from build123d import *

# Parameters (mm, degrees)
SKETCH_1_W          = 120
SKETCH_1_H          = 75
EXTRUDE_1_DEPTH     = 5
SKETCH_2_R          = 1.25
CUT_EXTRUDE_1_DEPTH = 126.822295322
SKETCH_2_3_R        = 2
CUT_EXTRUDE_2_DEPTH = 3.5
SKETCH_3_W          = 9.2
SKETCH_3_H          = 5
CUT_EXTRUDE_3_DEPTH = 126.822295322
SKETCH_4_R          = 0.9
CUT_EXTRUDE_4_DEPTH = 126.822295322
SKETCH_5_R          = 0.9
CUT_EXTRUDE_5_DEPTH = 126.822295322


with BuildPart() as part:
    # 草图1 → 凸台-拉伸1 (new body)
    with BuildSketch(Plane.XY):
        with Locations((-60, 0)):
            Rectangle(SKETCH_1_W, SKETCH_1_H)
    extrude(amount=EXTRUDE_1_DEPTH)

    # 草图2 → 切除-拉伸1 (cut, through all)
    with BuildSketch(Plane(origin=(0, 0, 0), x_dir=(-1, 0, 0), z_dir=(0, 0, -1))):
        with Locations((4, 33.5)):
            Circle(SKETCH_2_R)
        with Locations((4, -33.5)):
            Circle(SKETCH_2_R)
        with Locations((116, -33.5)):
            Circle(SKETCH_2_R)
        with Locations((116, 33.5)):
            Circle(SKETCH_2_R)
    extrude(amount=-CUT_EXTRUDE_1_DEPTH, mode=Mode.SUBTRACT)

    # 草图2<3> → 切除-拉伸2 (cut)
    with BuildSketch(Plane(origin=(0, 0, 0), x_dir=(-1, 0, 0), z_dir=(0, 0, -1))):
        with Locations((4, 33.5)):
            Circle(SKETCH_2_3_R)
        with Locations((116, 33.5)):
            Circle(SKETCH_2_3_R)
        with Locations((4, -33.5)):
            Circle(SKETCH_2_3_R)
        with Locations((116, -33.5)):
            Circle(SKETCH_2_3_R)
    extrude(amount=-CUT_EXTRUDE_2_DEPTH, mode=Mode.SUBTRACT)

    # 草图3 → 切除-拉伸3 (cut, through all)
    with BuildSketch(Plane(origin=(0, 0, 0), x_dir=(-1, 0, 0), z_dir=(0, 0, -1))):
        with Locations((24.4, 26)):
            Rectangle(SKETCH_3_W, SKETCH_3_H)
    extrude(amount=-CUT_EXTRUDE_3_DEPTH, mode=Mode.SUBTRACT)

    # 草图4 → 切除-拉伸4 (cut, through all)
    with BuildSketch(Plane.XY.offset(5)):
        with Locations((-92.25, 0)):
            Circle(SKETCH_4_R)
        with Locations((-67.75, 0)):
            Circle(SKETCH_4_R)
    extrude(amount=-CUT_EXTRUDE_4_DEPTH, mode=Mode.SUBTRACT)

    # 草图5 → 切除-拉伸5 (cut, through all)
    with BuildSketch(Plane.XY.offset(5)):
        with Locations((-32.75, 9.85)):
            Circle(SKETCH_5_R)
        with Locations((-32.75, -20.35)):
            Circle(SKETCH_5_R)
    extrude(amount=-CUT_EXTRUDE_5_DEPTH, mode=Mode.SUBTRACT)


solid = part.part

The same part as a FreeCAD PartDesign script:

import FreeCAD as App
import Part
import Sketcher
from FreeCAD import Vector

doc = App.newDocument("Part")
params = doc.addObject("Spreadsheet::Sheet", "Params")
for row, (alias, value) in enumerate([
    ("sketch1_width", "120 mm"),
    ("sketch1_height", "75 mm"),
    ("pad1_length", "5 mm"),
    ("sketch2_diameter", "2.5 mm"),
    ("sketch3_diameter", "4 mm"),
    ("pocket2_length", "3.5 mm"),
    ("sketch4_height", "5 mm"),
    ("sketch4_width", "9.2 mm"),
    ("sketch5_diameter", "1.8 mm"),
    ("sketch6_diameter", "1.8 mm"),
], start=1):
    params.set(f"A{row}", alias)
    params.set(f"B{row}", "=" + value)
    params.setAlias(f"B{row}", alias)

body = doc.addObject("PartDesign::Body", "Body")

sketch1 = body.newObject("Sketcher::SketchObject", "Sketch")
sketch1.AttachmentSupport = (doc.getObject("XY_Plane"), [""])
sketch1.MapMode = "FlatFace"
sketch1.addGeometry([
    Part.LineSegment(Vector(-120, 38, 0), Vector(-120, -38, 0)),
    Part.LineSegment(Vector(-120, -38, 0), Vector(0, -38, 0)),
    Part.LineSegment(Vector(0, -38, 0), Vector(0, 38, 0)),
    Part.LineSegment(Vector(0, 38, 0), Vector(-120, 38, 0)),
], False)
sketch1.addConstraint([
    Sketcher.Constraint("Coincident", 0, 2, 1, 1),
    Sketcher.Constraint("Coincident", 1, 2, 2, 1),
    Sketcher.Constraint("Coincident", 2, 2, 3, 1),
    Sketcher.Constraint("Coincident", 3, 2, 0, 1),
    Sketcher.Constraint("Vertical", 0),
    Sketcher.Constraint("Horizontal", 1),
    Sketcher.Constraint("Vertical", 2),
    Sketcher.Constraint("Horizontal", 3),
    Sketcher.Constraint("Symmetric", 1, 2, 2, 2, -1, 1),
    Sketcher.Constraint("DistanceX", 1, 1, 1, 2, 120.0),
    Sketcher.Constraint("DistanceY", 0, 2, 0, 1, 75.0),
])
sketch1.setExpression("Constraints[9]", "Params.sketch1_width")
sketch1.setExpression("Constraints[10]", "Params.sketch1_height")
pad1 = body.newObject("PartDesign::Pad", "Pad")
pad1.Profile = sketch1
pad1.setExpression("Length", "Params.pad1_length")

sketch2 = body.newObject("Sketcher::SketchObject", "Sketch001")
sketch2.AttachmentSupport = (doc.getObject("XY_Plane"), [""])
sketch2.MapMode = "FlatFace"
sketch2.addGeometry([
    Part.Circle(Vector(-4, 33.5, 0), Vector(0, 0, 1), 1.2),
    Part.Circle(Vector(-4, -33.5, 0), Vector(0, 0, 1), 1.2),
    Part.Circle(Vector(-116, -33.5, 0), Vector(0, 0, 1), 1.2),
    Part.Circle(Vector(-116, 33.5, 0), Vector(0, 0, 1), 1.2),
], False)
sketch2.addConstraint([
    Sketcher.Constraint("Equal", 0, 1),
    Sketcher.Constraint("Equal", 1, 2),
    Sketcher.Constraint("Equal", 2, 3),
    Sketcher.Constraint("Symmetric", 0, 3, 1, 3, -1),
    Sketcher.Constraint("Symmetric", 2, 3, 3, 3, -1),
    Sketcher.Constraint("Horizontal", 1, 3, 2, 3),
    Sketcher.Constraint("Diameter", 0, 2.5),
    Sketcher.Constraint("DistanceX", 0, 3, -1, 1, 4.0),
    Sketcher.Constraint("DistanceX", 2, 3, -1, 1, 116.0),
    Sketcher.Constraint("DistanceY", 1, 3, 0, 3, 67.0),
])
sketch2.setExpression("Constraints[6]", "Params.sketch2_diameter")
pocket1 = body.newObject("PartDesign::Pocket", "Pocket")
pocket1.Profile = sketch2
pocket1.Type = "ThroughAll"
pocket1.Reversed = True

sketch3 = body.newObject("Sketcher::SketchObject", "Sketch002")
sketch3.AttachmentSupport = (doc.getObject("XY_Plane"), [""])
sketch3.MapMode = "FlatFace"
sketch3.addGeometry([
    Part.Circle(Vector(-4, 33.5, 0), Vector(0, 0, 1), 2),
    Part.Circle(Vector(-116, 33.5, 0), Vector(0, 0, 1), 2),
    Part.Circle(Vector(-4, -33.5, 0), Vector(0, 0, 1), 2),
    Part.Circle(Vector(-116, -33.5, 0), Vector(0, 0, 1), 2),
], False)
sketch3.addConstraint([
    Sketcher.Constraint("Equal", 0, 1),
    Sketcher.Constraint("Equal", 1, 2),
    Sketcher.Constraint("Equal", 2, 3),
    Sketcher.Constraint("Symmetric", 0, 3, 2, 3, -1),
    Sketcher.Constraint("Symmetric", 1, 3, 3, 3, -1),
    Sketcher.Constraint("Horizontal", 0, 3, 1, 3),
    Sketcher.Constraint("Diameter", 0, 4.0),
    Sketcher.Constraint("DistanceX", 0, 3, -1, 1, 4.0),
    Sketcher.Constraint("DistanceX", 1, 3, -1, 1, 116.0),
    Sketcher.Constraint("DistanceY", 2, 3, 0, 3, 67.0),
])
sketch3.setExpression("Constraints[6]", "Params.sketch3_diameter")
pocket2 = body.newObject("PartDesign::Pocket", "Pocket001")
pocket2.Profile = sketch3
pocket2.setExpression("Length", "Params.pocket2_length")
pocket2.Reversed = True

sketch4 = body.newObject("Sketcher::SketchObject", "Sketch003")
sketch4.AttachmentSupport = (doc.getObject("XY_Plane"), [""])
sketch4.MapMode = "FlatFace"
sketch4.addGeometry([
    Part.LineSegment(Vector(-20, 28, 0), Vector(-20, 24, 0)),
    Part.LineSegment(Vector(-20, 24, 0), Vector(-29, 24, 0)),
    Part.LineSegment(Vector(-29, 24, 0), Vector(-29, 28, 0)),
    Part.LineSegment(Vector(-29, 28, 0), Vector(-20, 28, 0)),
], False)
sketch4.addConstraint([
    Sketcher.Constraint("Coincident", 0, 2, 1, 1),
    Sketcher.Constraint("Coincident", 1, 2, 2, 1),
    Sketcher.Constraint("Coincident", 2, 2, 3, 1),
    Sketcher.Constraint("Coincident", 3, 2, 0, 1),
    Sketcher.Constraint("Vertical", 0),
    Sketcher.Constraint("Horizontal", 1),
    Sketcher.Constraint("Vertical", 2),
    Sketcher.Constraint("Horizontal", 3),
    Sketcher.Constraint("DistanceY", 0, 2, 0, 1, 5.0),
    Sketcher.Constraint("DistanceX", 1, 2, 1, 1, 9.2),
    Sketcher.Constraint("DistanceX", 1, 2, -1, 1, 29.0),
    Sketcher.Constraint("DistanceY", -1, 1, 0, 2, 23.5),
])
sketch4.setExpression("Constraints[8]", "Params.sketch4_height")
sketch4.setExpression("Constraints[9]", "Params.sketch4_width")
pocket3 = body.newObject("PartDesign::Pocket", "Pocket002")
pocket3.Profile = sketch4
pocket3.Type = "ThroughAll"
pocket3.Reversed = True

sketch5 = body.newObject("Sketcher::SketchObject", "Sketch004")
sketch5.AttachmentSupport = (doc.getObject("XY_Plane"), [""])
sketch5.MapMode = "FlatFace"
sketch5.AttachmentOffset = App.Placement(Vector(0, 0, 5), App.Rotation())
sketch5.addGeometry([
    Part.Circle(Vector(-92.2, 0, 0), Vector(0, 0, 1), 0.9),
    Part.Circle(Vector(-67.8, 0, 0), Vector(0, 0, 1), 0.9),
], False)
sketch5.addConstraint([
    Sketcher.Constraint("Equal", 0, 1),
    Sketcher.Constraint("PointOnObject", 0, 3, -1),
    Sketcher.Constraint("PointOnObject", 1, 3, -1),
    Sketcher.Constraint("Diameter", 0, 1.8),
    Sketcher.Constraint("DistanceX", 0, 3, 1, 3, 24.5),
    Sketcher.Constraint("DistanceX", 0, 3, -1, 1, 92.25),
])
sketch5.setExpression("Constraints[3]", "Params.sketch5_diameter")
pocket4 = body.newObject("PartDesign::Pocket", "Pocket003")
pocket4.Profile = sketch5
pocket4.Type = "ThroughAll"

sketch6 = body.newObject("Sketcher::SketchObject", "Sketch005")
sketch6.AttachmentSupport = (doc.getObject("XY_Plane"), [""])
sketch6.MapMode = "FlatFace"
sketch6.AttachmentOffset = App.Placement(Vector(0, 0, 5), App.Rotation())
sketch6.addGeometry([
    Part.Circle(Vector(-32.8, 9.8, 0), Vector(0, 0, 1), 0.9),
    Part.Circle(Vector(-32.8, -20.4, 0), Vector(0, 0, 1), 0.9),
], False)
sketch6.addConstraint([
    Sketcher.Constraint("Equal", 0, 1),
    Sketcher.Constraint("Vertical", 0, 3, 1, 3),
    Sketcher.Constraint("Diameter", 0, 1.8),
    Sketcher.Constraint("DistanceY", 1, 3, 0, 3, 30.2),
    Sketcher.Constraint("DistanceX", 0, 3, -1, 1, 32.75),
    Sketcher.Constraint("DistanceY", -1, 1, 0, 3, 9.85),
])
sketch6.setExpression("Constraints[2]", "Params.sketch6_diameter")
pocket5 = body.newObject("PartDesign::Pocket", "Pocket004")
pocket5.Profile = sketch6
pocket5.Type = "ThroughAll"

doc.recompute()
